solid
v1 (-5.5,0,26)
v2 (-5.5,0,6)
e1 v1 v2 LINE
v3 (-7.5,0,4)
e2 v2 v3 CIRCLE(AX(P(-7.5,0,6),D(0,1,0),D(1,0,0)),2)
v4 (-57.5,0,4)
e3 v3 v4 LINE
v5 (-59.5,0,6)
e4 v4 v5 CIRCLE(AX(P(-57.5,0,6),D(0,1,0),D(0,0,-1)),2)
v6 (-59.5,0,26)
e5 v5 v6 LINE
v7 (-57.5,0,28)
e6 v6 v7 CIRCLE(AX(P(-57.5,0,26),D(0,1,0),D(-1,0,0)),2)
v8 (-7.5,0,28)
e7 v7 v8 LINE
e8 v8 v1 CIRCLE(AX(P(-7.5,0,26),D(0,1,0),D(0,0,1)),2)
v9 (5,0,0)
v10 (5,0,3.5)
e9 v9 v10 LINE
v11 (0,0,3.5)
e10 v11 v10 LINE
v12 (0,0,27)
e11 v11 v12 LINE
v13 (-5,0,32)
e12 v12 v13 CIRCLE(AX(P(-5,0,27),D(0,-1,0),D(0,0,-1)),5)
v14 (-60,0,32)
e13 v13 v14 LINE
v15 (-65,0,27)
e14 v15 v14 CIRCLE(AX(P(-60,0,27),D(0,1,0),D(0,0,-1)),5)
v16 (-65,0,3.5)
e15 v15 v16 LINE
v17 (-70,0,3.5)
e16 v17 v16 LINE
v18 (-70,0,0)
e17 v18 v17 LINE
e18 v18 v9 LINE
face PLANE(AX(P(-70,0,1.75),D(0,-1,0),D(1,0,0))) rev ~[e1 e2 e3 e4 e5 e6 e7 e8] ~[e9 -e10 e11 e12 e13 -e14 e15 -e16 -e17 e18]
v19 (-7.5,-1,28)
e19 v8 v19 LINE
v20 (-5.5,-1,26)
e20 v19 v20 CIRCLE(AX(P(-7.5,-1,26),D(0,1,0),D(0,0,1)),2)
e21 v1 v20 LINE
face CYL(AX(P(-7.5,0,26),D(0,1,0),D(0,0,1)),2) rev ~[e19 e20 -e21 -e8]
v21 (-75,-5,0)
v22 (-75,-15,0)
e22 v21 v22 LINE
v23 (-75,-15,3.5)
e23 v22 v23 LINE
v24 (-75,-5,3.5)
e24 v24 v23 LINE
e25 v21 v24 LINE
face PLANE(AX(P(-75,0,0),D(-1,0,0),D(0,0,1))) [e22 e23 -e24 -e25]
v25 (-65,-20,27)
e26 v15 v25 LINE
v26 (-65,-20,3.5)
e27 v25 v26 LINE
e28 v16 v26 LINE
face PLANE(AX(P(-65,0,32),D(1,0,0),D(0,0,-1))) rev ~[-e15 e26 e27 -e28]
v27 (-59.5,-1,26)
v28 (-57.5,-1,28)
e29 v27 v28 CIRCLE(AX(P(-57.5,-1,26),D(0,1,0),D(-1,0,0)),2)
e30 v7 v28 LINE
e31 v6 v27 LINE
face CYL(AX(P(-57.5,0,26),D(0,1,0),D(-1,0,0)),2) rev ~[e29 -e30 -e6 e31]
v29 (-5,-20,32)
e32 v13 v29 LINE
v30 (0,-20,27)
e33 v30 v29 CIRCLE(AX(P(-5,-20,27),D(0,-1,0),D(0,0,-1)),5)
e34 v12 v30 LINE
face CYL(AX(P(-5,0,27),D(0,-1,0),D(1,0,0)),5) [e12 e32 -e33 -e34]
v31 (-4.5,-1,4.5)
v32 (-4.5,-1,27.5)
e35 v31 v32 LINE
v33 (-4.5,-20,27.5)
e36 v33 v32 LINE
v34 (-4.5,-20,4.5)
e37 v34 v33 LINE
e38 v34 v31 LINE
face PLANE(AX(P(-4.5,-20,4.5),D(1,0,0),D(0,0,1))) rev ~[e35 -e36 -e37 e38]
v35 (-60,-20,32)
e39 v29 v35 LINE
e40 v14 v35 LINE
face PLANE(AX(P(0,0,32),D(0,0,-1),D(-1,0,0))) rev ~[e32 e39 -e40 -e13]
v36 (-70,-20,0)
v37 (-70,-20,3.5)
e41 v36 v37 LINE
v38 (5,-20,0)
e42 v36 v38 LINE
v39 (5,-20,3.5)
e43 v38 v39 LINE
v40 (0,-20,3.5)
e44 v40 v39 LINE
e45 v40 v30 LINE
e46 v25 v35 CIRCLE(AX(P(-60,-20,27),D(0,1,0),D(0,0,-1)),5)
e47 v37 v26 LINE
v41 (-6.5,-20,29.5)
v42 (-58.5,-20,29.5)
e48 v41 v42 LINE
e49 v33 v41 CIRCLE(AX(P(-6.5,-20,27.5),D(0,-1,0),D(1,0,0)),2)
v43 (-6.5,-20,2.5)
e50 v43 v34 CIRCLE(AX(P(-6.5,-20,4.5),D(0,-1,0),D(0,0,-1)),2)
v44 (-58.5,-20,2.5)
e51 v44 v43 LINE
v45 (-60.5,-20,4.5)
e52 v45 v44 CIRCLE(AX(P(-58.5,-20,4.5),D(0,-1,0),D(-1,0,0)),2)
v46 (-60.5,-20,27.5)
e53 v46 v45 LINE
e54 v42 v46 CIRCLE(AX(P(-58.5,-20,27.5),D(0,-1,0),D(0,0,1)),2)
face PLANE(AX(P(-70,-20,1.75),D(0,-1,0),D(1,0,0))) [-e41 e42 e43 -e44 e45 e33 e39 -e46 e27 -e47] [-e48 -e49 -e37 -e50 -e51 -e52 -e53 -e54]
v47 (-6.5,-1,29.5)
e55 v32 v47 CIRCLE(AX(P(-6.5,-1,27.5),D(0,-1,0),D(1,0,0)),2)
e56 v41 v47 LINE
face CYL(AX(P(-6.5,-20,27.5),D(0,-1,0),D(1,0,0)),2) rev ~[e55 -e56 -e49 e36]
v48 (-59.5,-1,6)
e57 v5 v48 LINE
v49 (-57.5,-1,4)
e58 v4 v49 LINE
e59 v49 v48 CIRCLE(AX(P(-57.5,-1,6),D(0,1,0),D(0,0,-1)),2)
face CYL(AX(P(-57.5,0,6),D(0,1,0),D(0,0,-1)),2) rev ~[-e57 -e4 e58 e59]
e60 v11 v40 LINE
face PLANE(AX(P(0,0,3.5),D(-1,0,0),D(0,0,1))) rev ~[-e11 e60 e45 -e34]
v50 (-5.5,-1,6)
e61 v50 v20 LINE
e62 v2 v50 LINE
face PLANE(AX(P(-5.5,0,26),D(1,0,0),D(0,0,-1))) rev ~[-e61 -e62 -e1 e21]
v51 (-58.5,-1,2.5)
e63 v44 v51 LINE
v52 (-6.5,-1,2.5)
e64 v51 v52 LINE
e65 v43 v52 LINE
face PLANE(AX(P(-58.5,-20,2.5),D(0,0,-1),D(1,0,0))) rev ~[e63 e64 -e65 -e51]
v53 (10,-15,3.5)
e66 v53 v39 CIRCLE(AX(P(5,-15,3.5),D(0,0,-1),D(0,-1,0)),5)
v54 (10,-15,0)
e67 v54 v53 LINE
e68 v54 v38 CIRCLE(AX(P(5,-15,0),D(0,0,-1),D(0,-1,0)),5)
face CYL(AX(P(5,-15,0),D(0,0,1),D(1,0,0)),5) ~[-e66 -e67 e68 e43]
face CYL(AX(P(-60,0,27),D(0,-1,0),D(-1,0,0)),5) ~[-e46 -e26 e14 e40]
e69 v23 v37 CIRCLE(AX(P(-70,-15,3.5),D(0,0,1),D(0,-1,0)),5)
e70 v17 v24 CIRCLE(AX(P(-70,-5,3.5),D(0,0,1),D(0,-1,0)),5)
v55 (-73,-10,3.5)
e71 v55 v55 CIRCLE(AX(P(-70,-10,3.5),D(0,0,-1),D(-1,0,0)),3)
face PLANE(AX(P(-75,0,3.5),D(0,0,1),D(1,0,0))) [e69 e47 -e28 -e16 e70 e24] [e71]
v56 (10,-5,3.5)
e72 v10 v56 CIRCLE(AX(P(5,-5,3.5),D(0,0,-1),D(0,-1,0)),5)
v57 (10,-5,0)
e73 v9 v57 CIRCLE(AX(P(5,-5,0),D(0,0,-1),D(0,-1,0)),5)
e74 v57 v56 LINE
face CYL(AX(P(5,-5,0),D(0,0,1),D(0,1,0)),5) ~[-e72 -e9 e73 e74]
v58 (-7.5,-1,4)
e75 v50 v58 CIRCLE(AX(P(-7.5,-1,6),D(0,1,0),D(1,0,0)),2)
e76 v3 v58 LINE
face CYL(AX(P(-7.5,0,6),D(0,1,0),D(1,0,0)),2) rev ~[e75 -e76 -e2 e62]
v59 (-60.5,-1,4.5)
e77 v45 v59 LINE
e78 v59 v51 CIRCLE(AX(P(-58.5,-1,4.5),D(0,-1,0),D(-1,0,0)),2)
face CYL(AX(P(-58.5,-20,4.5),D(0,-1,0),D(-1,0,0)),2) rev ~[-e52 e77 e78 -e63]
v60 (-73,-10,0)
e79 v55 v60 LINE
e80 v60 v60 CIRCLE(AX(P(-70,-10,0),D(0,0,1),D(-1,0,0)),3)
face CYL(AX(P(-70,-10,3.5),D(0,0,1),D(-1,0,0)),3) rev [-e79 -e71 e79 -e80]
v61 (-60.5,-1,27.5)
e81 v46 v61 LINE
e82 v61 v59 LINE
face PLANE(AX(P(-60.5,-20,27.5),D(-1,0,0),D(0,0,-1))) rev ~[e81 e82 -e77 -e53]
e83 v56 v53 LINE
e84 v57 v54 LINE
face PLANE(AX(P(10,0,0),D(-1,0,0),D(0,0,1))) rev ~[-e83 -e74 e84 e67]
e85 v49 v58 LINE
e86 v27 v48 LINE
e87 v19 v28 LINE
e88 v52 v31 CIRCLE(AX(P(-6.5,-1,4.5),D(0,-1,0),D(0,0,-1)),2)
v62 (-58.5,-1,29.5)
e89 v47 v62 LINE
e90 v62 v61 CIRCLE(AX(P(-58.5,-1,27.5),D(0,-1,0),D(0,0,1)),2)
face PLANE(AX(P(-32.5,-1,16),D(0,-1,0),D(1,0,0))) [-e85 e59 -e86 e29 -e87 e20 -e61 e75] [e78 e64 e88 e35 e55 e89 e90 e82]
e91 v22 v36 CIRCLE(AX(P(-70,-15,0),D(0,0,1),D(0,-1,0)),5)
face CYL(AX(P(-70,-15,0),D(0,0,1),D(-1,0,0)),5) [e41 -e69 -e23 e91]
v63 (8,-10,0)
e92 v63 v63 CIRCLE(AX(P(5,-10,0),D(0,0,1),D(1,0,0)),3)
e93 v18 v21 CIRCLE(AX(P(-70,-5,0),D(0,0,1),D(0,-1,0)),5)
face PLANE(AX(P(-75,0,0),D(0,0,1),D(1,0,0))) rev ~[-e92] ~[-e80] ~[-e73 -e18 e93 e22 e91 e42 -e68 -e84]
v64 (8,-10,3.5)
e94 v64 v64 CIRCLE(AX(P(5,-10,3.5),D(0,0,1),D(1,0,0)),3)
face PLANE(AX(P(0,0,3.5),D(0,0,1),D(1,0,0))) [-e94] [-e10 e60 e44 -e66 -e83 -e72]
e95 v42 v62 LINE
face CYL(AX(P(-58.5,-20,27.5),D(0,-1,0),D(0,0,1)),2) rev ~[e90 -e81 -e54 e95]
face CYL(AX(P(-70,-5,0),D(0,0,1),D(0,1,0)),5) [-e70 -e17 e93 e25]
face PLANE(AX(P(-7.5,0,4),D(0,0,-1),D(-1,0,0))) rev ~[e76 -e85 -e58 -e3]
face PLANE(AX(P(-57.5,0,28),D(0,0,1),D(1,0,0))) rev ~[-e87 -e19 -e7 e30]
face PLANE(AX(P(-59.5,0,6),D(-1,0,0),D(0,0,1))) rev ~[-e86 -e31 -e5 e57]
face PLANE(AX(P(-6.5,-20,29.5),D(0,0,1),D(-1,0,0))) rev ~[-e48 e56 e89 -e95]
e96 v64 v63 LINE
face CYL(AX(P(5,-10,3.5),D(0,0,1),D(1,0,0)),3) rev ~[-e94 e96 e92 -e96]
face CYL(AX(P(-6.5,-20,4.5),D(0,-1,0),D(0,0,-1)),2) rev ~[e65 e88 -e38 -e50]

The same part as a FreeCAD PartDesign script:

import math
import FreeCAD as App
import Part
import Sketcher

V = App.Vector


def edges_at(feature, points):
    """Names of the edges that pass closest to the given points."""
    edges = feature.Shape.Edges
    near = lambda p: min(range(len(edges)), key=lambda i: edges[i].distToShape(Part.Vertex(*p))[0])
    return sorted({f"Edge{near(p) + 1}" for p in points})

doc = App.newDocument("Part")
params = doc.addObject("Spreadsheet::Sheet", "Params")
for row, (alias, value) in enumerate([
    ("sketch1_width", "85 mm"),
    ("sketch1_width2", "10 mm"),
    ("sketch1_height", "3.5 mm"),
    ("sketch1_height2", "28.5 mm"),
    ("pad1_length", "20 mm"),
    ("sketch2_diameter", "6 mm"),
    ("fillet_radius", "5 mm"),
    ("sketch3_radius", "2 mm"),
    ("sketch3_width", "52 mm"),
    ("sketch3_height", "23 mm"),
    ("pocket2_length", "19 mm"),
    ("sketch4_radius", "2 mm"),
    ("sketch4_width", "50 mm"),
    ("sketch4_height", "20 mm"),
    ("pocket3_length", "5 mm"),
    ("fillet2_radius", "5 mm"),
], start=1):
    params.set(f"A{row}", alias)
    params.set(f"B{row}", "=" + value)
    params.setAlias(f"B{row}", alias)

body = doc.addObject("PartDesign::Body", "Body")

# Sketch on XZ plane
sketch1 = doc.addObject("Sketcher::SketchObject", "Sketch")
body.addObject(sketch1)
sketch1.AttachmentSupport = (doc.XZ_Plane, [""])
sketch1.MapMode = "FlatFace"
sketch1.addGeometry([
    Part.LineSegment(V(-75, 3.5, 0), V(-75, 0, 0)),  # 0
    Part.LineSegment(V(-75, 0, 0), V(10, 0, 0)),  # 1
    Part.LineSegment(V(10, 0, 0), V(10, 3.5, 0)),  # 2
    Part.LineSegment(V(10, 3.5, 0), V(0, 3.5, 0)),  # 3
    Part.LineSegment(V(0, 3.5, 0), V(0, 32, 0)),  # 4
    Part.LineSegment(V(0, 32, 0), V(-65, 32, 0)),  # 5
    Part.LineSegment(V(-65, 32, 0), V(-65, 3.5, 0)),  # 6
    Part.LineSegment(V(-65, 3.5, 0), V(-75, 3.5, 0)),  # 7
], False)
sketch1.addConstraint([
    Sketcher.Constraint("Coincident", 0, 2, 1, 1),
    Sketcher.Constraint("Coincident", 1, 2, 2, 1),
    Sketcher.Constraint("Coincident", 2, 2, 3, 1),
    Sketcher.Constraint("Coincident", 3, 2, 4, 1),
    Sketcher.Constraint("Coincident", 4, 2, 5, 1),
    Sketcher.Constraint("Coincident", 5, 2, 6, 1),
    Sketcher.Constraint("Coincident", 6, 2, 7, 1),
    Sketcher.Constraint("Coincident", 7, 2, 0, 1),
    Sketcher.Constraint("Vertical", 0),
    Sketcher.Constraint("Horizontal", 1),
    Sketcher.Constraint("Vertical", 2),
    Sketcher.Constraint("Horizontal", 3),
    Sketcher.Constraint("Vertical", 4),
    Sketcher.Constraint("Horizontal", 5),
    Sketcher.Constraint("Vertical", 6),
    Sketcher.Constraint("Horizontal", 7),
    Sketcher.Constraint("PointOnObject", 0, 2, -1),
    Sketcher.Constraint("PointOnObject", 3, 2, -2),
    Sketcher.Constraint("Horizontal", 3, 2, 6, 2),
    Sketcher.Constraint("Equal", 3, 7),
    Sketcher.Constraint("DistanceX", 1, 1, 1, 2, 85.0),
    Sketcher.Constraint("DistanceX", 3, 2, 3, 1, 10.0),
    Sketcher.Constraint("DistanceY", 0, 2, 0, 1, 3.5),
    Sketcher.Constraint("DistanceY", 4, 1, 4, 2, 28.5),
])
sketch1.setExpression("Constraints[20]", "Params.sketch1_width")
sketch1.setExpression("Constraints[21]", "Params.sketch1_width2")
sketch1.setExpression("Constraints[22]", "Params.sketch1_height")
sketch1.setExpression("Constraints[23]", "Params.sketch1_height2")
pad1 = doc.addObject("PartDesign::Pad", "Pad")
body.addObject(pad1)
pad1.Profile = sketch1
pad1.setExpression("Length", "Params.pad1_length")

# Sketch on XY plane
sketch2 = doc.addObject("Sketcher::SketchObject", "Sketch001")
body.addObject(sketch2)
sketch2.AttachmentSupport = (doc.XY_Plane, [""])
sketch2.MapMode = "FlatFace"
sketch2.AttachmentOffset = App.Placement(V(0, 0, 3.5), App.Rotation())
sketch2.addGeometry(Part.Circle(V(5, -10, 0), V(0, 0, 1), 3), False)
sketch2.addConstraint([
    Sketcher.Constraint("Diameter", 0, 6.0),
    Sketcher.Constraint("DistanceX", -1, 1, 0, 3, 5.0),
    Sketcher.Constraint("DistanceY", 0, 3, -1, 1, 10.0),
])
sketch2.setExpression("Constraints[0]", "Params.sketch2_diameter")
pocket1 = doc.addObject("PartDesign::Pocket", "Pocket")
body.addObject(pocket1)
pocket1.Profile = sketch2
pocket1.Type = "ThroughAll"
doc.recompute()

datumplane = doc.addObject("PartDesign::Plane", "DatumPlane")
body.addObject(datumplane)
datumplane.AttachmentSupport = (doc.YZ_Plane, [""])
datumplane.MapMode = "FlatFace"
datumplane.AttachmentOffset = App.Placement(V(0, 0, -32.5), App.Rotation())
mirrored = doc.addObject("PartDesign::Mirrored", "Mirrored")
body.addObject(mirrored)
mirrored.Originals = [pocket1]
mirrored.MirrorPlane = (datumplane, [""])
body.Tip = mirrored
doc.recompute()

fillet = doc.addObject("PartDesign::Fillet", "Fillet")
body.addObject(fillet)
fillet.Base = (mirrored, edges_at(mirrored, [(0, -10, 32), (-65, -10, 32)]))
fillet.setExpression("Radius", "Params.fillet_radius")

# Sketch on XZ plane
sketch3 = doc.addObject("Sketcher::SketchObject", "Sketch002")
body.addObject(sketch3)
sketch3.AttachmentSupport = (doc.XZ_Plane, [""])
sketch3.MapMode = "FlatFace"
sketch3.AttachmentOffset = App.Placement(V(0, 0, 20), App.Rotation())
sketch3.addGeometry([
    Part.LineSegment(V(-58.5, 2.5, 0), V(-6.5, 2.5, 0)),  # 0
    Part.ArcOfCircle(Part.Circle(V(-6.5, 4.5, 0), V(0, 0, 1), 2), math.radians(-90), math.radians(0)),  # 1
    Part.LineSegment(V(-4.5, 4.5, 0), V(-4.5, 27.5, 0)),  # 2
    Part.ArcOfCircle(Part.Circle(V(-6.5, 27.5, 0), V(0, 0, 1), 2), math.radians(0), math.radians(90)),  # 3
    Part.LineSegment(V(-6.5, 29.5, 0), V(-58.5, 29.5, 0)),  # 4
    Part.ArcOfCircle(Part.Circle(V(-58.5, 27.5, 0), V(0, 0, 1), 2), math.radians(90), math.radians(180)),  # 5
    Part.LineSegment(V(-60.5, 27.5, 0), V(-60.5, 4.5, 0)),  # 6
    Part.ArcOfCircle(Part.Circle(V(-58.5, 4.5, 0), V(0, 0, 1), 2), math.radians(180), math.radians(270)),  # 7
], False)
sketch3.addConstraint([
    Sketcher.Constraint("Tangent", 0, 2, 1, 1),
    Sketcher.Constraint("Tangent", 1, 2, 2, 1),
    Sketcher.Constraint("Tangent", 2, 2, 3, 1),
    Sketcher.Constraint("Tangent", 3, 2, 4, 1),
    Sketcher.Constraint("Tangent", 4, 2, 5, 1),
    Sketcher.Constraint("Tangent", 5, 2, 6, 1),
    Sketcher.Constraint("Tangent", 6, 2, 7, 1),
    Sketcher.Constraint("Tangent", 7, 2, 0, 1),
    Sketcher.Constraint("Horizontal", 0),
    Sketcher.Constraint("Vertical", 2),
    Sketcher.Constraint("Horizontal", 4),
    Sketcher.Constraint("Vertical", 6),
    Sketcher.Constraint("Equal", 1, 3),
    Sketcher.Constraint("Equal", 3, 5),
    Sketcher.Constraint("Equal", 5, 7),
    Sketcher.Constraint("Radius", 1, 2.0),
    Sketcher.Constraint("DistanceX", 0, 1, 0, 2, 52.0),
    Sketcher.Constraint("DistanceY", 2, 1, 2, 2, 23.0),
    Sketcher.Constraint("DistanceX", 1, 3, -1, 1, 6.5),
    Sketcher.Constraint("DistanceY", -1, 1, 1, 3, 4.5),
])
sketch3.setExpression("Constraints[15]", "Params.sketch3_radius")
sketch3.setExpression("Constraints[16]", "Params.sketch3_width")
sketch3.setExpression("Constraints[17]", "Params.sketch3_height")
pocket2 = doc.addObject("PartDesign::Pocket", "Pocket001")
body.addObject(pocket2)
pocket2.Profile = sketch3
pocket2.setExpression("Length", "Params.pocket2_length")

# Sketch on XZ plane
sketch4 = doc.addObject("Sketcher::SketchObject", "Sketch003")
body.addObject(sketch4)
sketch4.AttachmentSupport = (doc.XZ_Plane, [""])
sketch4.MapMode = "FlatFace"
sketch4.addGeometry([
    Part.LineSegment(V(-7.5, 4, 0), V(-57.5, 4, 0)),  # 0
    Part.ArcOfCircle(Part.Circle(V(-57.5, 6, 0), V(0, 0, 1), 2), math.radians(180), math.radians(270)),  # 1
    Part.LineSegment(V(-59.5, 6, 0), V(-59.5, 26, 0)),  # 2
    Part.ArcOfCircle(Part.Circle(V(-57.5, 26, 0), V(0, 0, 1), 2), math.radians(90), math.radians(180)),  # 3
    Part.LineSegment(V(-57.5, 28, 0), V(-7.5, 28, 0)),  # 4
    Part.ArcOfCircle(Part.Circle(V(-7.5, 26, 0), V(0, 0, 1), 2), math.radians(0), math.radians(90)),  # 5
    Part.LineSegment(V(-5.5, 26, 0), V(-5.5, 6, 0)),  # 6
    Part.ArcOfCircle(Part.Circle(V(-7.5, 6, 0), V(0, 0, 1), 2), math.radians(-90), math.radians(0)),  # 7
], False)
sketch4.addConstraint([
    Sketcher.Constraint("Tangent", 0, 2, 1, 2),
    Sketcher.Constraint("Tangent", 1, 1, 2, 1),
    Sketcher.Constraint("Tangent", 2, 2, 3, 2),
    Sketcher.Constraint("Tangent", 3, 1, 4, 1),
    Sketcher.Constraint("Tangent", 4, 2, 5, 2),
    Sketcher.Constraint("Tangent", 5, 1, 6, 1),
    Sketcher.Constraint("Tangent", 6, 2, 7, 2),
    Sketcher.Constraint("Tangent", 7, 1, 0, 1),
    Sketcher.Constraint("Horizontal", 0),
    Sketcher.Constraint("Vertical", 2),
    Sketcher.Constraint("Horizontal", 4),
    Sketcher.Constraint("Vertical", 6),
    Sketcher.Constraint("Equal", 1, 3),
    Sketcher.Constraint("Equal", 3, 5),
    Sketcher.Constraint("Equal", 5, 7),
    Sketcher.Constraint("Radius", 1, 2.0),
    Sketcher.Constraint("DistanceX", 0, 2, 0, 1, 50.0),
    Sketcher.Constraint("DistanceY", 2, 1, 2, 2, 20.0),
    Sketcher.Constraint("DistanceY", -1, 1, 1, 3, 6.0),
    Sketcher.Constraint("DistanceX", 1, 3, -1, 1, 57.5),
])
sketch4.setExpression("Constraints[15]", "Params.sketch4_radius")
sketch4.setExpression("Constraints[16]", "Params.sketch4_width")
sketch4.setExpression("Constraints[17]", "Params.sketch4_height")
pocket3 = doc.addObject("PartDesign::Pocket", "Pocket002")
body.addObject(pocket3)
pocket3.Profile = sketch4
pocket3.setExpression("Length", "Params.pocket3_length")
pocket3.Reversed = True
doc.recompute()

fillet2 = doc.addObject("PartDesign::Fillet", "Fillet001")
body.addObject(fillet2)
fillet2.Base = (pocket3, edges_at(pocket3, [
    (-75, -20, 1.75),
    (-75, 0, 1.75),
    (10, -20, 1.75),
    (10, 0, 1.75),
]))
fillet2.setExpression("Radius", "Params.fillet2_radius")

doc.recompute()
